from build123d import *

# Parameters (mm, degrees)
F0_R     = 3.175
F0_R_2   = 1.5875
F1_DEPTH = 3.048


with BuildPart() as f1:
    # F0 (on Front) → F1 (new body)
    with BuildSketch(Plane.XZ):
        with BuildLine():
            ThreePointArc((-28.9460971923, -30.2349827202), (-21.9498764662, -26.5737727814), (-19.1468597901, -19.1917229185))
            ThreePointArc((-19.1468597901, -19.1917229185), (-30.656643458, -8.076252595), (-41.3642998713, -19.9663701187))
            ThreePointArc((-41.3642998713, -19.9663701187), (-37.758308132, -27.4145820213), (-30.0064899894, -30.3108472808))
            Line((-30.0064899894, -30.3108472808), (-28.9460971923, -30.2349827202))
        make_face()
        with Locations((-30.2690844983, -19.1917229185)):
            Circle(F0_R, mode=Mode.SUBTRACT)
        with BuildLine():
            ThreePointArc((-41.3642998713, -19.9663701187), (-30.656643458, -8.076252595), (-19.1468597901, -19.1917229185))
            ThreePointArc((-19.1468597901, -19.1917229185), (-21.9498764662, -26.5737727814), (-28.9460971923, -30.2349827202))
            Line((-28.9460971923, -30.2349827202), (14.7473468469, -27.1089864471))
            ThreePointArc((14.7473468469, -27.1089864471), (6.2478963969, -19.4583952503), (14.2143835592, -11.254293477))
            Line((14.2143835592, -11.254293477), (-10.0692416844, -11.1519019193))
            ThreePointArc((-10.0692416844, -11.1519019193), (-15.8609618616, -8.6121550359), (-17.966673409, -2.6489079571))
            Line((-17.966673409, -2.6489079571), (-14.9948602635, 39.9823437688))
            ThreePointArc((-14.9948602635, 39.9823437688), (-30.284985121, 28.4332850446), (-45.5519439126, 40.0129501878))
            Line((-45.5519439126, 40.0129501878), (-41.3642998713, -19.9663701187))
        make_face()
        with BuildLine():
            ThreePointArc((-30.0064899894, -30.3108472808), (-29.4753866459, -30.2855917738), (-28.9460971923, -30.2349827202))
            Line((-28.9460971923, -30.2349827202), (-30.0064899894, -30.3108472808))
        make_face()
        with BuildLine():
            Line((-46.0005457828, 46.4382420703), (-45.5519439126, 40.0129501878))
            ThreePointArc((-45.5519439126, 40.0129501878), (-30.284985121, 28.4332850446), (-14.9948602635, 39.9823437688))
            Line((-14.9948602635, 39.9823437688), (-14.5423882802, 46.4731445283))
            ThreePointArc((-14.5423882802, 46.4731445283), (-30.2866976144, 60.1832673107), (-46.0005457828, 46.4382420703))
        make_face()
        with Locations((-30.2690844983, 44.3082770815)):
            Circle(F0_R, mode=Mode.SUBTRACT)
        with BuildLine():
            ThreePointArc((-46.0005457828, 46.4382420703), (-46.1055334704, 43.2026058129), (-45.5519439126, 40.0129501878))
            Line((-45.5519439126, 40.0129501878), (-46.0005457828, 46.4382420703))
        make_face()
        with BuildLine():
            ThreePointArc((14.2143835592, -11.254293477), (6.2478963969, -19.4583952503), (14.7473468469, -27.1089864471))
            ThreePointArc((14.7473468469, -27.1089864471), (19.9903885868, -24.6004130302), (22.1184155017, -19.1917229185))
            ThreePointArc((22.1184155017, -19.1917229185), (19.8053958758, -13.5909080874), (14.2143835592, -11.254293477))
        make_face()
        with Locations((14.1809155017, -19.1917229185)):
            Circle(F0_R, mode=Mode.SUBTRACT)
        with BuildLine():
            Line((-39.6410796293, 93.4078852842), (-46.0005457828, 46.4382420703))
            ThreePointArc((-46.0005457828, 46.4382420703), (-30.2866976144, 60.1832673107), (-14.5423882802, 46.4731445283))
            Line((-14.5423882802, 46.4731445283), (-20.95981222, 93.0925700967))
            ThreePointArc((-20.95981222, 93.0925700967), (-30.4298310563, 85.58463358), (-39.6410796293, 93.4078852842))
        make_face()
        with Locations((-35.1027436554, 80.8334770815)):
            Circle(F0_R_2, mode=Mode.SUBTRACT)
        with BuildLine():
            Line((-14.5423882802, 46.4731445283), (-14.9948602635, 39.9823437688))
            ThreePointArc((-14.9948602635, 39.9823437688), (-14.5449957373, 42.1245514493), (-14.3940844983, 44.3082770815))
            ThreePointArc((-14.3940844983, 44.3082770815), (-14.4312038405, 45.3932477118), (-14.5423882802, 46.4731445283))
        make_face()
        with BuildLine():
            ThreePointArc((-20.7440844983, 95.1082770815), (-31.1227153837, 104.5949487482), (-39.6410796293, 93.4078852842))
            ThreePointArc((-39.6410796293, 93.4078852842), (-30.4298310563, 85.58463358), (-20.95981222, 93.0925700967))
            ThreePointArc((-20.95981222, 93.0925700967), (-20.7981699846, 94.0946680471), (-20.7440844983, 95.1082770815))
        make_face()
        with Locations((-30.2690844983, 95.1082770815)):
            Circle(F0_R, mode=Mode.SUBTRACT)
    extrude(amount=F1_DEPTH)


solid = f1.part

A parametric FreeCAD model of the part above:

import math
import FreeCAD as App
import Part
import Sketcher
Q = App.Units.Quantity

doc = App.newDocument("Part")
body = doc.addObject("PartDesign::Body", "Body")

sketch1 = doc.addObject("Sketcher::SketchObject", "Sketch")
body.addObject(sketch1)
sketch1.AttachmentSupport = (doc.XZ_Plane, [""])
sketch1.MapMode = "FlatFace"
sketch1.addGeometry(Part.LineSegment(App.Vector(-28.946097, -30.234983, 0), App.Vector(14.747347, -27.108986, 0)), False)
sketch1.addGeometry(Part.ArcOfCircle(Part.Circle(App.Vector(14.180916, -19.191723, 0), App.Vector(0, 0, 1), 7.9375), math.radians(-85.907813), math.radians(0)), False)
sketch1.addGeometry(Part.ArcOfCircle(Part.Circle(App.Vector(14.180916, -19.191723, 0), App.Vector(0, 0, 1), 7.9375), math.radians(0), math.radians(89.758415)), False)
sketch1.addGeometry(Part.LineSegment(App.Vector(14.214384, -11.254293, 0), App.Vector(-10.069242, -11.151902, 0)), False)
sketch1.addGeometry(Part.ArcOfCircle(Part.Circle(App.Vector(-10.03572, -3.201773, 0), App.Vector(0, 0, 1), 7.9502), math.radians(176.012377), math.radians(269.758415)), False)
sketch1.addGeometry(Part.LineSegment(App.Vector(-17.966673, -2.648908, 0), App.Vector(-14.99486, 39.982344, 0)), False)
sketch1.addGeometry(Part.ArcOfCircle(Part.Circle(App.Vector(-30.269084, 44.308277, 0), App.Vector(0, 0, 1), 15.875), math.radians(-15.81307), math.radians(0)), False)
sketch1.addGeometry(Part.ArcOfCircle(Part.Circle(App.Vector(-30.269084, 44.308277, 0), App.Vector(0, 0, 1), 15.875), math.radians(0), math.radians(7.837825)), False)
sketch1.addGeometry(Part.LineSegment(App.Vector(-14.542388, 46.473145, 0), App.Vector(-20.959812, 93.09257, 0)), False)
sketch1.addGeometry(Part.ArcOfCircle(Part.Circle(App.Vector(-30.269084, 95.108277, 0), App.Vector(0, 0, 1), 9.525), math.radians(-12.217468), math.radians(0)), False)
sketch1.addGeometry(Part.ArcOfCircle(Part.Circle(App.Vector(-30.269084, 95.108277, 0), App.Vector(0, 0, 1), 9.525), math.radians(0), math.radians(190.283497)), False)
sketch1.addGeometry(Part.LineSegment(App.Vector(-39.64108, 93.407885, 0), App.Vector(-46.000546, 46.438242, 0)), False)
sketch1.addGeometry(Part.ArcOfCircle(Part.Circle(App.Vector(-30.269084, 44.308277, 0), App.Vector(0, 0, 1), 15.875), math.radians(172.289313), math.radians(195.698293)), False)
sketch1.addGeometry(Part.LineSegment(App.Vector(-45.551944, 40.01295, 0), App.Vector(-41.3643, -19.96637, 0)), False)
sketch1.addGeometry(Part.ArcOfCircle(Part.Circle(App.Vector(-30.269084, -19.191723, 0), App.Vector(0, 0, 1), 11.122225), math.radians(-176.006197), math.radians(-88.647127)), False)
sketch1.addGeometry(Part.ArcOfCircle(Part.Circle(App.Vector(-30.269085, -19.191723, 0), App.Vector(0, 0, 1), 11.122225), math.radians(-88.647127), math.radians(-83.168499)), False)
sketch1.addGeometry(Part.Circle(App.Vector(-30.269084, -19.191723, 0), App.Vector(0, 0, 1), 3.175), False)
sketch1.addGeometry(Part.Circle(App.Vector(14.180916, -19.191723, 0), App.Vector(0, 0, 1), 3.175), False)
sketch1.addGeometry(Part.Circle(App.Vector(-30.269084, 44.308277, 0), App.Vector(0, 0, 1), 3.175), False)
sketch1.addGeometry(Part.Circle(App.Vector(-35.102744, 80.833477, 0), App.Vector(0, 0, 1), 1.5875), False)
sketch1.addGeometry(Part.Circle(App.Vector(-30.269084, 95.108277, 0), App.Vector(0, 0, 1), 3.175), False)
sketch1.addConstraint(Sketcher.Constraint("Coincident", 0, 2, 1, 1))
sketch1.addConstraint(Sketcher.Constraint("Coincident", 1, 2, 2, 1))
sketch1.addConstraint(Sketcher.Constraint("Coincident", 2, 2, 3, 1))
sketch1.addConstraint(Sketcher.Constraint("Coincident", 3, 2, 4, 2))
sketch1.addConstraint(Sketcher.Constraint("Coincident", 4, 1, 5, 1))
sketch1.addConstraint(Sketcher.Constraint("Coincident", 5, 2, 6, 1))
sketch1.addConstraint(Sketcher.Constraint("Coincident", 6, 2, 7, 1))
sketch1.addConstraint(Sketcher.Constraint("Coincident", 7, 2, 8, 1))
sketch1.addConstraint(Sketcher.Constraint("Coincident", 8, 2, 9, 1))
sketch1.addConstraint(Sketcher.Constraint("Coincident", 9, 2, 10, 1))
sketch1.addConstraint(Sketcher.Constraint("Coincident", 10, 2, 11, 1))
sketch1.addConstraint(Sketcher.Constraint("Coincident", 11, 2, 12, 1))
sketch1.addConstraint(Sketcher.Constraint("Coincident", 12, 2, 13, 1))
sketch1.addConstraint(Sketcher.Constraint("Coincident", 13, 2, 14, 1))
sketch1.addConstraint(Sketcher.Constraint("Coincident", 14, 2, 15, 1))
sketch1.addConstraint(Sketcher.Constraint("Coincident", 15, 2, 0, 1))
sketch1.addConstraint(Sketcher.Constraint("Coincident", 2, 3, 1, 3))
sketch1.addConstraint(Sketcher.Constraint("Coincident", 7, 3, 6, 3))
sketch1.addConstraint(Sketcher.Constraint("Coincident", 10, 3, 9, 3))
sketch1.addConstraint(Sketcher.Constraint("Coincident", 12, 3, 6, 3))
sketch1.addConstraint(Sketcher.Constraint("Coincident", 15, 3, 14, 3))
sketch1.addConstraint(Sketcher.Constraint("Coincident", 16, 3, 14, 3))
sketch1.addConstraint(Sketcher.Constraint("Coincident", 17, 3, 1, 3))
sketch1.addConstraint(Sketcher.Constraint("Coincident", 18, 3, 6, 3))
sketch1.addConstraint(Sketcher.Constraint("Coincident", 20, 3, 9, 3))
sketch1.addConstraint(Sketcher.Constraint("Diameter", 16, Q("0.25 in")))
sketch1.addConstraint(Sketcher.Constraint("Diameter", 17, Q("0.25 in")))
sketch1.addConstraint(Sketcher.Constraint("Diameter", 18, Q("0.25 in")))
sketch1.addConstraint(Sketcher.Constraint("Diameter", 20, Q("0.25 in")))
sketch1.addConstraint(Sketcher.Constraint("Diameter", 19, Q("0.125 in")))
sketch1.addConstraint(Sketcher.Constraint("Radius", 1, Q("0.3125 in")))
sketch1.addConstraint(Sketcher.Constraint("Radius", 4, Q("0.313 in")))
sketch1.addConstraint(Sketcher.Constraint("Radius", 6, Q("0.625 in")))
sketch1.addConstraint(Sketcher.Constraint("Radius", 9, Q("0.375 in")))
sketch1.addConstraint(Sketcher.Constraint("Radius", 12, Q("0.625 in")))
sketch1.addConstraint(Sketcher.Constraint("DistanceY", 6, 3, 9, 3, Q("2 in")))
sketch1.addConstraint(Sketcher.Constraint("DistanceY", 2, 3, 6, 3, Q("2.5 in")))
sketch1.addConstraint(Sketcher.Constraint("DistanceY", 14, 3, 6, 3, Q("2.5 in")))
sketch1.addConstraint(Sketcher.Constraint("DistanceX", 6, 3, 2, 3, Q("1.75 in")))
sketch1.addConstraint(Sketcher.Constraint("DistanceX", 9, 3, 2, 3, Q("1.75 in")))
sketch1.addConstraint(Sketcher.Constraint("DistanceX", 14, 3, 1, 3, Q("1.75 in")))
sketch1.addConstraint(Sketcher.Constraint("DistanceY", 19, 3, 10, 3, Q("0.562 in")))
sketch1.addConstraint(Sketcher.Constraint("DistanceY", 19, 3, 9, 2, Q("0.562 in")))
sketch1.addConstraint(Sketcher.Constraint("Radius", 14, Q("11.122225 mm")))
sketch1.addConstraint(Sketcher.Constraint("DistanceY", 3, 2, -1, 1, Q("11.151902 mm")))
sketch1.addConstraint(Sketcher.Constraint("DistanceX", 13, 2, -1, 1, Q("41.3643 mm")))
sketch1.addConstraint(Sketcher.Constraint("DistanceY", 5, 2, 7, 2, Q("6.490801 mm")))
sketch1.addConstraint(Sketcher.Constraint("DistanceX", 11, 2, 12, 2, Q("0.448602 mm")))
sketch1.addConstraint(Sketcher.Constraint("Distance", 3, Q("24.283841 mm")))
sketch1.addConstraint(Sketcher.Constraint("Distance", 5, Q("42.734708 mm")))
sketch1.addConstraint(Sketcher.Constraint("Distance", 8, Q("47.05905 mm")))
sketch1.addConstraint(Sketcher.Constraint("Distance", 11, Q("47.398209 mm")))
sketch1.addConstraint(Sketcher.Constraint("Distance", 13, Q("60.125329 mm")))
sketch1.addConstraint(Sketcher.Constraint("DistanceX", 4, 3, -1, 1, Q("10.03572 mm")))
sketch1.addConstraint(Sketcher.Constraint("DistanceX", 3, 2, -1, 1, Q("10.069242 mm")))
sketch1.addConstraint(Sketcher.Constraint("DistanceX", 5, 2, -1, 1, Q("14.99486 mm")))
sketch1.addConstraint(Sketcher.Constraint("DistanceX", 7, 2, -1, 1, Q("14.542388 mm")))
sketch1.addConstraint(Sketcher.Constraint("DistanceY", -1, 1, 8, 2, Q("93.09257 mm")))
sketch1.addConstraint(Sketcher.Constraint("DistanceX", 14, 2, -1, 1, Q("30.00649 mm")))
sketch1.addConstraint(Sketcher.Constraint("DistanceX", 19, 3, 10, 3, Q("4.833659 mm")))
sketch1.addConstraint(Sketcher.Constraint("DistanceX", 1, 3, 0, 2, Q("0.566431 mm")))
sketch1.addConstraint(Sketcher.Constraint("DistanceY", 1, 2, 4, 3, Q("15.98995 mm")))
sketch1.addConstraint(Sketcher.Constraint("DistanceY", 15, 2, 14, 3, Q("11.04326 mm")))
sketch1.addConstraint(Sketcher.Constraint("DistanceY", -1, 1, 6, 2, Q("44.308277 mm")))
pad1 = doc.addObject("PartDesign::Pad", "Pad")
body.addObject(pad1)
pad1.Profile = sketch1
pad1.Length = Q("0.12 in")

doc.recompute()
